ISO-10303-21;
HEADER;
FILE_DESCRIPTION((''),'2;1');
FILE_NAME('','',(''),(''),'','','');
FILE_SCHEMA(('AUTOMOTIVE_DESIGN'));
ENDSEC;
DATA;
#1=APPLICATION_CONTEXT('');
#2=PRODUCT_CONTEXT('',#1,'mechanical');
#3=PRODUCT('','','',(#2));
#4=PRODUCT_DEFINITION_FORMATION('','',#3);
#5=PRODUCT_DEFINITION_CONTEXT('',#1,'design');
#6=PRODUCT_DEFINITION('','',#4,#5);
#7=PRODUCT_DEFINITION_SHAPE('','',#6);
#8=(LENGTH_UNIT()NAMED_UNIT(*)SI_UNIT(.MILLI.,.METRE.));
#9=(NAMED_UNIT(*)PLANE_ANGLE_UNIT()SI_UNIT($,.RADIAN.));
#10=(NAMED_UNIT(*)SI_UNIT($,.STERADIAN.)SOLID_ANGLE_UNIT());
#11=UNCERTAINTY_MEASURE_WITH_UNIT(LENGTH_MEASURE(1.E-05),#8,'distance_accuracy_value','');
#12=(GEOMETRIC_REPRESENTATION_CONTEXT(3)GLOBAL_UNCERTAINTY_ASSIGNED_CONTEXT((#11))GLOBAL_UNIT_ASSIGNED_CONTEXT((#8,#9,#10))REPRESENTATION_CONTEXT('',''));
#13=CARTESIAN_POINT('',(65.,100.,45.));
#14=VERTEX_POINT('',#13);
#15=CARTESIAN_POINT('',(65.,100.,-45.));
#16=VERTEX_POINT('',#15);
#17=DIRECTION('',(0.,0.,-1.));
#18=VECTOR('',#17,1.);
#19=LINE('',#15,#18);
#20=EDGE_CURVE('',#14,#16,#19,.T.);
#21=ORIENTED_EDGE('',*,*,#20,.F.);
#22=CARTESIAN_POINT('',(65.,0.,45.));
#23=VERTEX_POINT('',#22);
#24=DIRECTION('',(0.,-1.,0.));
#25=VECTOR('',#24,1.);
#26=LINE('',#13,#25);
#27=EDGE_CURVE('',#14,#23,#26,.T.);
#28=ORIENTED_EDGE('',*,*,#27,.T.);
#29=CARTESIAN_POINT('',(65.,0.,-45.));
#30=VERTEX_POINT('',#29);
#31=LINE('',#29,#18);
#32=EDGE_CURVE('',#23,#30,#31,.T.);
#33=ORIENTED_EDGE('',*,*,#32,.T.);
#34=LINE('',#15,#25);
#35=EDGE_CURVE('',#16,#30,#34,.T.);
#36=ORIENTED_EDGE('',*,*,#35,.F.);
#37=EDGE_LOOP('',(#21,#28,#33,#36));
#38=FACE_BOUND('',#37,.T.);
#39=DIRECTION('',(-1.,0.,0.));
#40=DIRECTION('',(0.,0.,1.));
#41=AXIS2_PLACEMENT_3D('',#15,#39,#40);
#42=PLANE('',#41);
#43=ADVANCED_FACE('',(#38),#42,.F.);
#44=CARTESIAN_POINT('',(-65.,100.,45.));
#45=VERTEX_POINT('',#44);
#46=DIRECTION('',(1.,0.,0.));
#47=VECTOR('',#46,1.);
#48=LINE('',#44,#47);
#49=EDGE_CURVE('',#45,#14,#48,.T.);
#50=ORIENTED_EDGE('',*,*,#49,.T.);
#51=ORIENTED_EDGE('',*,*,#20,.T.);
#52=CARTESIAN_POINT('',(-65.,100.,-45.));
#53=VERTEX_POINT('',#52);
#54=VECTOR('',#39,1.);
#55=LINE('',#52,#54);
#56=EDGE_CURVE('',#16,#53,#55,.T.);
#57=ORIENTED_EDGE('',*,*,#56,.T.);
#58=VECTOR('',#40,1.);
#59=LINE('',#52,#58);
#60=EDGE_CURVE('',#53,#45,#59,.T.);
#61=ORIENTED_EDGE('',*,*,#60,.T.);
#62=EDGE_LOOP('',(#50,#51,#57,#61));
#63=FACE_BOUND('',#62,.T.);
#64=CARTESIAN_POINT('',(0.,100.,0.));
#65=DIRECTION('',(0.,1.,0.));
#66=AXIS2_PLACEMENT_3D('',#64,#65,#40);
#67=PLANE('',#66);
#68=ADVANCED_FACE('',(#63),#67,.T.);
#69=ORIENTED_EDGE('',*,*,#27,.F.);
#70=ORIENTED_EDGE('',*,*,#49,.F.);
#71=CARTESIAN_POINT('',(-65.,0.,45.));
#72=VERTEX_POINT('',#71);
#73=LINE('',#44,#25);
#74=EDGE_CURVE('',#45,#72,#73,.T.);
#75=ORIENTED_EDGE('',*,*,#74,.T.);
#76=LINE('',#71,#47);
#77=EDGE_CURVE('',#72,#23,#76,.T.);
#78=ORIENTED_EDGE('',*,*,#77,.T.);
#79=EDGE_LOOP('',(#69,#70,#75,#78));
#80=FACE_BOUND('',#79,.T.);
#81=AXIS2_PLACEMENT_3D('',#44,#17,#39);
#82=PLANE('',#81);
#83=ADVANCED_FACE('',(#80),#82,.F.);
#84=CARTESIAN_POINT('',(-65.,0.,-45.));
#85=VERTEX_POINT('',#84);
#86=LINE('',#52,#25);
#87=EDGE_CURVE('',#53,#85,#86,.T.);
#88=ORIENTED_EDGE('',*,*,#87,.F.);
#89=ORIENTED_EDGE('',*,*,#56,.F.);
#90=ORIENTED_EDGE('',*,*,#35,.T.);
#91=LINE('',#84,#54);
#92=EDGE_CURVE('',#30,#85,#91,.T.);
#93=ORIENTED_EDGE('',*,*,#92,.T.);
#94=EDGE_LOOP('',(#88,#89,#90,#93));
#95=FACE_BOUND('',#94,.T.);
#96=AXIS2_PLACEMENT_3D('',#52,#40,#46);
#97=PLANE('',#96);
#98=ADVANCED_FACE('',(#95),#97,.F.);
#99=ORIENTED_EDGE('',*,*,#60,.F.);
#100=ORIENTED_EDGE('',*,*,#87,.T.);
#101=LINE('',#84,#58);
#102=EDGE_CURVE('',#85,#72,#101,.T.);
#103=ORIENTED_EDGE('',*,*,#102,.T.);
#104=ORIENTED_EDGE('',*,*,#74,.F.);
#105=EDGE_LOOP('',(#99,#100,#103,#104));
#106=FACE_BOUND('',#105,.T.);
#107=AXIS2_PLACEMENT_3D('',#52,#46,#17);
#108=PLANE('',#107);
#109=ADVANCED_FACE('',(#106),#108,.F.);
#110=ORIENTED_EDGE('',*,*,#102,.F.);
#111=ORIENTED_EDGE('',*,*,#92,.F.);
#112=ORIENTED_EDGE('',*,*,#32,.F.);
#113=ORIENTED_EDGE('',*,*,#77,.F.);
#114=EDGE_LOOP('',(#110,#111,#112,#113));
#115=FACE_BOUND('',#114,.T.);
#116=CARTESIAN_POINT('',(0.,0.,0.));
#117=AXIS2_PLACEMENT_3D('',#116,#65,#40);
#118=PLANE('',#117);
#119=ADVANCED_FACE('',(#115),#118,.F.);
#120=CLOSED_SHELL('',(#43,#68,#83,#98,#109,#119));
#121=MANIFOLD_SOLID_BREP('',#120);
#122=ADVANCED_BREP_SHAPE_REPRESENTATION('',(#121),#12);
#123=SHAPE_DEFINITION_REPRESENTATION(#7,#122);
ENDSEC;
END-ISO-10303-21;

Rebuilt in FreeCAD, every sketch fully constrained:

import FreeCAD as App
import Part
import Sketcher


def add_polygon(sketch, points):
    """Adds a closed chain of lines whose ends are joined by coincident constraints."""
    first, n = sketch.GeometryCount, len(points)
    for a, b in zip(points, points[1:] + points[:1]):
        sketch.addGeometry(Part.LineSegment(App.Vector(*a, 0), App.Vector(*b, 0)), False)
    for i in range(n):
        sketch.addConstraint(Sketcher.Constraint("Coincident", first + i, 2, first + (i + 1) % n, 1))

doc = App.newDocument("Part")
params = doc.addObject("Spreadsheet::Sheet", "Params")
for row, (alias, value) in enumerate([
    ("sketch1_width", "130 mm"),
    ("sketch1_height", "90 mm"),
    ("pad1_length", "100 mm"),
], start=1):
    params.set(f"A{row}", alias)
    params.set(f"B{row}", "=" + value)
    params.setAlias(f"B{row}", alias)

body = doc.addObject("PartDesign::Body", "Body")

sketch1 = doc.addObject("Sketcher::SketchObject", "Sketch")
body.addObject(sketch1)
sketch1.AttachmentSupport = (doc.XZ_Plane, [""])
sketch1.MapMode = "FlatFace"
add_polygon(sketch1, [(-65, -45), (-65, 45), (65, 45), (65, -45)])
sketch1.addConstraint(Sketcher.Constraint("Vertical", 0))
sketch1.addConstraint(Sketcher.Constraint("Horizontal", 1))
sketch1.addConstraint(Sketcher.Constraint("Vertical", 2))
sketch1.addConstraint(Sketcher.Constraint("Horizontal", 3))
sketch1.addConstraint(Sketcher.Constraint("Symmetric", 0, 2, 2, 2, -1, 1))
sketch1.addConstraint(Sketcher.Constraint("DistanceX", 1, 1, 1, 2, 130.0))
sketch1.addConstraint(Sketcher.Constraint("DistanceY", 0, 1, 0, 2, 90.0))
sketch1.setExpression("Constraints[9]", "Params.sketch1_width")
sketch1.setExpression("Constraints[10]", "Params.sketch1_height")
pad1 = doc.addObject("PartDesign::Pad", "Pad")
body.addObject(pad1)
pad1.Profile = sketch1
pad1.setExpression("Length", "Params.pad1_length")
pad1.Reversed = True

doc.recompute()
